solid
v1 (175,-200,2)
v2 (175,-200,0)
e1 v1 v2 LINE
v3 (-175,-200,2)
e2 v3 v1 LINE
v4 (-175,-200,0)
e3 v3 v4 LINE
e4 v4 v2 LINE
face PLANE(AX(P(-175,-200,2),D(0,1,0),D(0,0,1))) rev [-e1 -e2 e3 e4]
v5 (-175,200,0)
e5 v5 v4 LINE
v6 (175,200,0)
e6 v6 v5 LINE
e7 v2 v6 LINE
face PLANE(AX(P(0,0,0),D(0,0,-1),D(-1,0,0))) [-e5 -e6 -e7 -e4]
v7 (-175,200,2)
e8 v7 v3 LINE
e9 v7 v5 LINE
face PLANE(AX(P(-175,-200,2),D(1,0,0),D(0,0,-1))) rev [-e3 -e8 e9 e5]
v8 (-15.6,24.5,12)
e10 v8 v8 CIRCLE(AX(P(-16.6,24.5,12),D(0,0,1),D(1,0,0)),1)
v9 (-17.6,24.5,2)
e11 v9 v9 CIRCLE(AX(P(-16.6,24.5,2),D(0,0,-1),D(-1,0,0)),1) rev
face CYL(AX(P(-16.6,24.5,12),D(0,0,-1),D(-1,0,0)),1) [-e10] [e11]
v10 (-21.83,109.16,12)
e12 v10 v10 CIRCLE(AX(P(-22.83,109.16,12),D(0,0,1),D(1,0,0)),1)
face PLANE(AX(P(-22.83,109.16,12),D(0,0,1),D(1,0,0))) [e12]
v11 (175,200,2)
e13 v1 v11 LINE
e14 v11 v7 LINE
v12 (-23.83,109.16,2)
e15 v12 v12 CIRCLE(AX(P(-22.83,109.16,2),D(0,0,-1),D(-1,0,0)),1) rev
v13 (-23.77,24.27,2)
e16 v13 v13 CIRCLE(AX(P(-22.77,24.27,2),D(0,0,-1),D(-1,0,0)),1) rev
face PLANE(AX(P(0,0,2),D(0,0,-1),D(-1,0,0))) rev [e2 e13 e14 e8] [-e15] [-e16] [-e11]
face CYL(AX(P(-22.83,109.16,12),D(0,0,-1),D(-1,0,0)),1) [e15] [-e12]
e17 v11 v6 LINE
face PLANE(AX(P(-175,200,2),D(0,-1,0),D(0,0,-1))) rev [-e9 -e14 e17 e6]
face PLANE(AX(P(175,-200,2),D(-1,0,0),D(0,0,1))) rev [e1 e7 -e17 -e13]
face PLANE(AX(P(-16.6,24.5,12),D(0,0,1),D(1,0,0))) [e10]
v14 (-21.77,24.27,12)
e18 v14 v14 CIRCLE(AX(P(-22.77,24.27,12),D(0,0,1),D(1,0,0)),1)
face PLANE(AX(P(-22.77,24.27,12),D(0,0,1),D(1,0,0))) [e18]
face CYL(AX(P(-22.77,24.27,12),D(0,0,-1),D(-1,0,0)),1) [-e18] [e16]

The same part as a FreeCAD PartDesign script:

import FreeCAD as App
import Part
import Sketcher
from FreeCAD import Vector


def add_polygon(sketch, points):
    """Adds a closed chain of lines whose ends are joined by coincident constraints."""
    first, n = sketch.GeometryCount, len(points)
    for a, b in zip(points, points[1:] + points[:1]):
        sketch.addGeometry(Part.LineSegment(App.Vector(*a, 0), App.Vector(*b, 0)), False)
    for i in range(n):
        sketch.addConstraint(Sketcher.Constraint("Coincident", first + i, 2, first + (i + 1) % n, 1))

doc = App.newDocument("Part")
params = doc.addObject("Spreadsheet::Sheet", "Params")
for row, (alias, value) in enumerate([
    ("sketch1_width", "350 mm"),
    ("sketch1_height", "400 mm"),
    ("pad1_length", "2 mm"),
    ("sketch2_diameter", "2 mm"),
    ("pad2_length", "10 mm"),
], start=1):
    params.set(f"A{row}", alias)
    params.set(f"B{row}", "=" + value)
    params.setAlias(f"B{row}", alias)

body = doc.addObject("PartDesign::Body", "Body")

# Sketch on XY plane
sketch1 = doc.addObject("Sketcher::SketchObject", "Sketch")
body.addObject(sketch1)
sketch1.AttachmentSupport = (doc.XY_Plane, [""])
sketch1.MapMode = "FlatFace"
add_polygon(sketch1, [(-175, 200), (-175, -200), (175, -200), (175, 200)])  # lines 0-3
sketch1.addConstraint(Sketcher.Constraint("Vertical", 0))
sketch1.addConstraint(Sketcher.Constraint("Horizontal", 1))
sketch1.addConstraint(Sketcher.Constraint("Vertical", 2))
sketch1.addConstraint(Sketcher.Constraint("Horizontal", 3))
sketch1.addConstraint(Sketcher.Constraint("Symmetric", 0, 2, 2, 2, -1, 1))
sketch1.addConstraint(Sketcher.Constraint("DistanceX", 1, 1, 1, 2, 350.0))
sketch1.addConstraint(Sketcher.Constraint("DistanceY", 0, 2, 0, 1, 400.0))
sketch1.setExpression("Constraints[9]", "Params.sketch1_width")
sketch1.setExpression("Constraints[10]", "Params.sketch1_height")
pad1 = doc.addObject("PartDesign::Pad", "Pad")
body.addObject(pad1)
pad1.Profile = sketch1
pad1.setExpression("Length", "Params.pad1_length")

# Sketch on XY plane
sketch2 = doc.addObject("Sketcher::SketchObject", "Sketch001")
body.addObject(sketch2)
sketch2.AttachmentSupport = (doc.XY_Plane, [""])
sketch2.MapMode = "FlatFace"
sketch2.AttachmentOffset = App.Placement(Vector(0, 0, 2), App.Rotation())
sketch2.addGeometry(Part.Circle(Vector(-16.6, 24.5, 0), Vector(0, 0, 1), 1), False)
sketch2.addGeometry(Part.Circle(Vector(-22.8, 24.3, 0), Vector(0, 0, 1), 1), False)
sketch2.addGeometry(Part.Circle(Vector(-22.8, 109.2, 0), Vector(0, 0, 1), 1), False)
sketch2.addConstraint(Sketcher.Constraint("Equal", 0, 1))
sketch2.addConstraint(Sketcher.Constraint("Equal", 1, 2))
sketch2.addConstraint(Sketcher.Constraint("Diameter", 0, 2.0))
sketch2.addConstraint(Sketcher.Constraint("DistanceX", 0, 3, -1, 1, 16.6))
sketch2.addConstraint(Sketcher.Constraint("DistanceY", -1, 1, 0, 3, 24.5))
sketch2.addConstraint(Sketcher.Constraint("DistanceX", 1, 3, -1, 1, 22.77))
sketch2.addConstraint(Sketcher.Constraint("DistanceY", -1, 1, 1, 3, 24.27))
sketch2.addConstraint(Sketcher.Constraint("DistanceX", 2, 3, -1, 1, 22.83))
sketch2.addConstraint(Sketcher.Constraint("DistanceY", -1, 1, 2, 3, 109.16))
sketch2.setExpression("Constraints[2]", "Params.sketch2_diameter")
pad2 = doc.addObject("PartDesign::Pad", "Pad001")
body.addObject(pad2)
pad2.Profile = sketch2
pad2.setExpression("Length", "Params.pad2_length")

doc.recompute()
